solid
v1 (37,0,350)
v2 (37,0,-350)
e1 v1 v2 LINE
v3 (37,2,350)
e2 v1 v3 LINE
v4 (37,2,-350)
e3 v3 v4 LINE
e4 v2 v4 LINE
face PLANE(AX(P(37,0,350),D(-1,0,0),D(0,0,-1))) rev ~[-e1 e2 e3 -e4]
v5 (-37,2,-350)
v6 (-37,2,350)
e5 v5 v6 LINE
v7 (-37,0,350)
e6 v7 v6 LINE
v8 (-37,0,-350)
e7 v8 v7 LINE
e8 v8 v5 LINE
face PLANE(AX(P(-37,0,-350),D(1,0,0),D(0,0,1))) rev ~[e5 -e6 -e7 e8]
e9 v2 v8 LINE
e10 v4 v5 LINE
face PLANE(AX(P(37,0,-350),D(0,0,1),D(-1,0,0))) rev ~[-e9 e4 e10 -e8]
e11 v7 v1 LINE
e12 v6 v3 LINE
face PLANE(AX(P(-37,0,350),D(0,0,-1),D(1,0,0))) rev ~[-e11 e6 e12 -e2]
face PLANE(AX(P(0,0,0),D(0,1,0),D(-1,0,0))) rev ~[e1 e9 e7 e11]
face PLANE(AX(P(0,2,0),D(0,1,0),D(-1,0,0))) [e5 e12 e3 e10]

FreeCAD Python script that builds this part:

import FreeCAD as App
import Part
import Sketcher

V = App.Vector
Q = App.Units.Quantity


def add_polygon(sketch, points):
    """Adds a closed chain of lines whose ends are joined by coincident constraints."""
    first, n = sketch.GeometryCount, len(points)
    for a, b in zip(points, points[1:] + points[:1]):
        sketch.addGeometry(Part.LineSegment(App.Vector(*a, 0), App.Vector(*b, 0)), False)
    for i in range(n):
        sketch.addConstraint(Sketcher.Constraint("Coincident", first + i, 2, first + (i + 1) % n, 1))

doc = App.newDocument("Part")
body = doc.addObject("PartDesign::Body", "Body")

sketch1 = doc.addObject("Sketcher::SketchObject", "Sketch")
body.addObject(sketch1)
sketch1.AttachmentSupport = (doc.XZ_Plane, [""])
sketch1.MapMode = "FlatFace"
add_polygon(sketch1, [(-37, -350), (-37, 350), (37, 350), (37, -350)])
sketch1.addConstraint([
    Sketcher.Constraint("Vertical", 0),
    Sketcher.Constraint("Horizontal", 1),
    Sketcher.Constraint("Vertical", 2),
    Sketcher.Constraint("Horizontal", 3),
    Sketcher.Constraint("Symmetric", 0, 2, 2, 2, -1, 1),
    Sketcher.Constraint("DistanceX", 1, 1, 1, 2, Q("74 mm")),
    Sketcher.Constraint("DistanceY", 0, 1, 0, 2, Q("700 mm")),
])
pad1 = doc.addObject("PartDesign::Pad", "Pad")
body.addObject(pad1)
pad1.Profile = sketch1
pad1.Length = 2
pad1.Reversed = True

doc.recompute()
